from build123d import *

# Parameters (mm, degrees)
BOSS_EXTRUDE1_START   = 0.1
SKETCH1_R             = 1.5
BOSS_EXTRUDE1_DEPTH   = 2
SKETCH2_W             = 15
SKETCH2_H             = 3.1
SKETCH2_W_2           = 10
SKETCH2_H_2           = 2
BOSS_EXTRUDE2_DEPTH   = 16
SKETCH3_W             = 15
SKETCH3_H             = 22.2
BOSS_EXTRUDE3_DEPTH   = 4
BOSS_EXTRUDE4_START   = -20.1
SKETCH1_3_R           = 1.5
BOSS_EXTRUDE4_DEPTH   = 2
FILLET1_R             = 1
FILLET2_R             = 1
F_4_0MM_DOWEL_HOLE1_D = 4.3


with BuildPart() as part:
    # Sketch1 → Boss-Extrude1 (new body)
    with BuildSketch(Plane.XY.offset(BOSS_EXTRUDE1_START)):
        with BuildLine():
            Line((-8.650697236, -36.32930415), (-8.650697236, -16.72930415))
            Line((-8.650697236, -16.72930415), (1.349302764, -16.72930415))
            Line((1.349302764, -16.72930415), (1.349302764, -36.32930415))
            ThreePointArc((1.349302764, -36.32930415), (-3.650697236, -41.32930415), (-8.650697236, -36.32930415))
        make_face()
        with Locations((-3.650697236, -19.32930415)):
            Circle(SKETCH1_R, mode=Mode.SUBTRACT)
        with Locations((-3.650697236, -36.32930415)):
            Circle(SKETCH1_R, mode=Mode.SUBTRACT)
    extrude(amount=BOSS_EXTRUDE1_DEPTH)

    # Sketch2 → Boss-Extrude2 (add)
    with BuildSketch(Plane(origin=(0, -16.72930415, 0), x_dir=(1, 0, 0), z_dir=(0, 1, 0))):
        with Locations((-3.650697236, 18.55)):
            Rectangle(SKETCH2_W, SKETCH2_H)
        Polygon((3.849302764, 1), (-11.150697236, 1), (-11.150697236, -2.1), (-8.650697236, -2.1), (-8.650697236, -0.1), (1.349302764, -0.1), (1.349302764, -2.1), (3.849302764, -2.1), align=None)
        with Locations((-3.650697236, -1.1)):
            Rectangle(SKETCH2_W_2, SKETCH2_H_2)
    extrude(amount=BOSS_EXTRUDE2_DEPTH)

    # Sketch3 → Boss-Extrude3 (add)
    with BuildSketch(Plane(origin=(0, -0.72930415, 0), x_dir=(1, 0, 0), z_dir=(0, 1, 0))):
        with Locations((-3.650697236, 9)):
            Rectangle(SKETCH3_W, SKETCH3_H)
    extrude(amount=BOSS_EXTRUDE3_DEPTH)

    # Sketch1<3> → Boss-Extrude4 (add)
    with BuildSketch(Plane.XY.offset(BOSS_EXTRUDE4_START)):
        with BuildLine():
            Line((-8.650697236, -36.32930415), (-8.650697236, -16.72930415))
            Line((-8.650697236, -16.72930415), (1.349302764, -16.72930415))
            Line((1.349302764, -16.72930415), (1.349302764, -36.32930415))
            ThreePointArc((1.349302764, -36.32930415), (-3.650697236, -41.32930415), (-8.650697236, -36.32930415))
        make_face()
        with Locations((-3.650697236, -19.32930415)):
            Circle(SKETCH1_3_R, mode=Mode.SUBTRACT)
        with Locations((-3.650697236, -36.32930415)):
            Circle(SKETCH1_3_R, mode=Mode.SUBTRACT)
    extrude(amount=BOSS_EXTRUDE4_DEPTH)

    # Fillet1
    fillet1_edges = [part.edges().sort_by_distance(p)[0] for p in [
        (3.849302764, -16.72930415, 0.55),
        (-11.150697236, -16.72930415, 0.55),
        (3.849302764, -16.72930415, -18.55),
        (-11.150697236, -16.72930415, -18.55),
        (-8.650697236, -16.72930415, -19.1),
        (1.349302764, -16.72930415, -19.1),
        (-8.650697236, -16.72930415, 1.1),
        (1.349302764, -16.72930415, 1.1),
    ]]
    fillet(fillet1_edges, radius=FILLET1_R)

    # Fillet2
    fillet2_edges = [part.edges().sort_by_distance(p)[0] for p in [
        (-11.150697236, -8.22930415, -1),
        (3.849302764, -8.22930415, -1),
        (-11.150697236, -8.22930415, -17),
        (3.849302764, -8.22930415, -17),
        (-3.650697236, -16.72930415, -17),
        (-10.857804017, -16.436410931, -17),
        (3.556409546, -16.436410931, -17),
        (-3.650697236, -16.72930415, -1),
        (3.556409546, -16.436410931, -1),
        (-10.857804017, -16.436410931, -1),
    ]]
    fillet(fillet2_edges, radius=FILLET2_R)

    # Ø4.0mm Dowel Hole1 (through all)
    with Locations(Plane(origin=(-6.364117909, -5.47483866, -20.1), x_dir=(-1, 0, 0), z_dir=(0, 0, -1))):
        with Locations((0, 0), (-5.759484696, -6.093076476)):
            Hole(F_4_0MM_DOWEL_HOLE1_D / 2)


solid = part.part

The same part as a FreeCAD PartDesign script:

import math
import FreeCAD as App
import Part
import Sketcher
from FreeCAD import Vector


def edges_at(feature, points):
    """Names of the edges that pass closest to the given points."""
    edges = feature.Shape.Edges
    near = lambda p: min(range(len(edges)), key=lambda i: edges[i].distToShape(Part.Vertex(*p))[0])
    return sorted({f"Edge{near(p) + 1}" for p in points})


def add_polygon(sketch, points):
    """Adds a closed chain of lines whose ends are joined by coincident constraints."""
    first, n = sketch.GeometryCount, len(points)
    for a, b in zip(points, points[1:] + points[:1]):
        sketch.addGeometry(Part.LineSegment(App.Vector(*a, 0), App.Vector(*b, 0)), False)
    for i in range(n):
        sketch.addConstraint(Sketcher.Constraint("Coincident", first + i, 2, first + (i + 1) % n, 1))

doc = App.newDocument("Part")
params = doc.addObject("Spreadsheet::Sheet", "Params")
for row, (alias, value) in enumerate([
    ("sketch1_diameter", "3 mm"),
    ("sketch1_radius", "5 mm"),
    ("sketch1_height", "19.6 mm"),
    ("pad1_length", "2 mm"),
    ("sketch2_width", "15 mm"),
    ("sketch2_height", "3.1 mm"),
    ("pad2_length", "16 mm"),
    ("sketch3_width", "15 mm"),
    ("sketch3_height", "22.2 mm"),
    ("pad3_length", "4 mm"),
    ("sketch4_diameter", "3 mm"),
    ("sketch4_radius", "5 mm"),
    ("sketch4_height", "19.6 mm"),
    ("pad4_length", "2 mm"),
    ("fillet_radius", "1 mm"),
    ("fillet2_radius", "1 mm"),
    ("sketch5_diameter", "4.3 mm"),
    ("hole_diameter", "4.3 mm"),
], start=1):
    params.set(f"A{row}", alias)
    params.set(f"B{row}", "=" + value)
    params.setAlias(f"B{row}", alias)

body = doc.addObject("PartDesign::Body", "Body")
body.AllowCompound = True

# Sketch on XY plane
sketch1 = body.newObject("Sketcher::SketchObject", "Sketch")
sketch1.AttachmentSupport = (doc.getObject("XY_Plane"), [""])
sketch1.MapMode = "FlatFace"
sketch1.AttachmentOffset = App.Placement(Vector(0, 0, 0.1), App.Rotation())
sketch1.addGeometry([
    Part.LineSegment(Vector(-8.7, -16.7, 0), Vector(-8.7, -36.3, 0)),  # 0
    Part.ArcOfCircle(Part.Circle(Vector(-3.7, -36.3, 0), Vector(0, 0, 1), 5), math.radians(180), math.radians(360)),  # 1
    Part.LineSegment(Vector(1.3, -36.3, 0), Vector(1.3, -16.7, 0)),  # 2
    Part.LineSegment(Vector(1.3, -16.7, 0), Vector(-8.7, -16.7, 0)),  # 3
    Part.Circle(Vector(-3.7, -36.3, 0), Vector(0, 0, 1), 1.5),  # 4
    Part.Circle(Vector(-3.7, -19.3, 0), Vector(0, 0, 1), 1.5),  # 5
], False)
sketch1.addConstraint([
    Sketcher.Constraint("Tangent", 0, 2, 1, 1),
    Sketcher.Constraint("Tangent", 1, 2, 2, 1),
    Sketcher.Constraint("Coincident", 2, 2, 3, 1),
    Sketcher.Constraint("Coincident", 3, 2, 0, 1),
    Sketcher.Constraint("Vertical", 0),
    Sketcher.Constraint("Vertical", 2),
    Sketcher.Constraint("Horizontal", 3),
    Sketcher.Constraint("Coincident", 4, 3, 1, 3),
    Sketcher.Constraint("Equal", 4, 5),
    Sketcher.Constraint("Vertical", 4, 3, 5, 3),
    Sketcher.Constraint("Diameter", 4, 3.0),
    Sketcher.Constraint("Radius", 1, 5.0),
    Sketcher.Constraint("DistanceY", 0, 2, 0, 1, 19.6),
    Sketcher.Constraint("DistanceY", 1, 3, 5, 3, 17.0),
    Sketcher.Constraint("DistanceX", 1, 3, -1, 1, 3.650697),
    Sketcher.Constraint("DistanceY", 1, 3, -1, 1, 36.329304),
])
sketch1.setExpression("Constraints[10]", "Params.sketch1_diameter")
sketch1.setExpression("Constraints[11]", "Params.sketch1_radius")
sketch1.setExpression("Constraints[12]", "Params.sketch1_height")
pad1 = body.newObject("PartDesign::Pad", "Pad")
pad1.Profile = sketch1
pad1.setExpression("Length", "Params.pad1_length")

# Sketch on XZ plane
sketch2 = body.newObject("Sketcher::SketchObject", "Sketch001")
sketch2.AttachmentSupport = (doc.getObject("XZ_Plane"), [""])
sketch2.MapMode = "FlatFace"
sketch2.AttachmentOffset = App.Placement(Vector(0, 0, 16.729304), App.Rotation())
add_polygon(sketch2, [(-11.2, -20.1), (-11.2, -17), (3.8, -17), (3.8, -20.1)])  # lines 0-3
add_polygon(sketch2, [(3.8, -1), (-11.2, -1), (-11.2, 2.1), (3.8, 2.1)])  # lines 4-7
sketch2.addConstraint([
    Sketcher.Constraint("Vertical", 0),
    Sketcher.Constraint("Horizontal", 1),
    Sketcher.Constraint("Vertical", 2),
    Sketcher.Constraint("Horizontal", 3),
    Sketcher.Constraint("Horizontal", 4),
    Sketcher.Constraint("Vertical", 5),
    Sketcher.Constraint("Horizontal", 6),
    Sketcher.Constraint("Vertical", 7),
    Sketcher.Constraint("Vertical", 3, 2, 4, 2),
    Sketcher.Constraint("Vertical", 2, 2, 6, 2),
    Sketcher.Constraint("Equal", 2, 5),
    Sketcher.Constraint("DistanceX", 1, 1, 1, 2, 15.0),
    Sketcher.Constraint("DistanceY", 0, 1, 0, 2, 3.1),
    Sketcher.Constraint("DistanceY", 0, 2, -1, 1, 17.0),
    Sketcher.Constraint("DistanceY", 4, 2, -1, 1, 1.0),
    Sketcher.Constraint("DistanceX", 0, 2, -1, 1, 11.150697),
])
sketch2.setExpression("Constraints[19]", "Params.sketch2_width")
sketch2.setExpression("Constraints[20]", "Params.sketch2_height")
pad2 = body.newObject("PartDesign::Pad", "Pad001")
pad2.Profile = sketch2
pad2.setExpression("Length", "Params.pad2_length")
pad2.Reversed = True

# Sketch on XZ plane
sketch3 = body.newObject("Sketcher::SketchObject", "Sketch002")
sketch3.AttachmentSupport = (doc.getObject("XZ_Plane"), [""])
sketch3.MapMode = "FlatFace"
sketch3.AttachmentOffset = App.Placement(Vector(0, 0, 0.729304), App.Rotation())
add_polygon(sketch3, [(-11, -20), (-11, 2), (4, 2), (4, -20)])  # lines 0-3
sketch3.addConstraint([
    Sketcher.Constraint("Vertical", 0),
    Sketcher.Constraint("Horizontal", 1),
    Sketcher.Constraint("Vertical", 2),
    Sketcher.Constraint("Horizontal", 3),
    Sketcher.Constraint("DistanceX", 1, 1, 1, 2, 15.0),
    Sketcher.Constraint("DistanceY", 0, 1, 0, 2, 22.2),
    Sketcher.Constraint("DistanceY", -1, 1, 0, 2, 2.1),
    Sketcher.Constraint("DistanceX", 0, 2, -1, 1, 11.150697),
])
sketch3.setExpression("Constraints[8]", "Params.sketch3_width")
sketch3.setExpression("Constraints[9]", "Params.sketch3_height")
pad3 = body.newObject("PartDesign::Pad", "Pad002")
pad3.Profile = sketch3
pad3.setExpression("Length", "Params.pad3_length")
pad3.Reversed = True

# Sketch on XY plane
sketch4 = body.newObject("Sketcher::SketchObject", "Sketch003")
sketch4.AttachmentSupport = (doc.getObject("XY_Plane"), [""])
sketch4.MapMode = "FlatFace"
sketch4.AttachmentOffset = App.Placement(Vector(0, 0, -20.1), App.Rotation())
sketch4.addGeometry([
    Part.LineSegment(Vector(-8.7, -16.7, 0), Vector(-8.7, -36.3, 0)),  # 0
    Part.ArcOfCircle(Part.Circle(Vector(-3.7, -36.3, 0), Vector(0, 0, 1), 5), math.radians(180), math.radians(360)),  # 1
    Part.LineSegment(Vector(1.3, -36.3, 0), Vector(1.3, -16.7, 0)),  # 2
    Part.LineSegment(Vector(1.3, -16.7, 0), Vector(-8.7, -16.7, 0)),  # 3
    Part.Circle(Vector(-3.7, -36.3, 0), Vector(0, 0, 1), 1.5),  # 4
    Part.Circle(Vector(-3.7, -19.3, 0), Vector(0, 0, 1), 1.5),  # 5
], False)
sketch4.addConstraint([
    Sketcher.Constraint("Tangent", 0, 2, 1, 1),
    Sketcher.Constraint("Tangent", 1, 2, 2, 1),
    Sketcher.Constraint("Coincident", 2, 2, 3, 1),
    Sketcher.Constraint("Coincident", 3, 2, 0, 1),
    Sketcher.Constraint("Vertical", 0),
    Sketcher.Constraint("Vertical", 2),
    Sketcher.Constraint("Horizontal", 3),
    Sketcher.Constraint("Coincident", 4, 3, 1, 3),
    Sketcher.Constraint("Equal", 4, 5),
    Sketcher.Constraint("Vertical", 4, 3, 5, 3),
    Sketcher.Constraint("Diameter", 4, 3.0),
    Sketcher.Constraint("Radius", 1, 5.0),
    Sketcher.Constraint("DistanceY", 0, 2, 0, 1, 19.6),
    Sketcher.Constraint("DistanceY", 1, 3, 5, 3, 17.0),
    Sketcher.Constraint("DistanceX", 1, 3, -1, 1, 3.650697),
    Sketcher.Constraint("DistanceY", 1, 3, -1, 1, 36.329304),
])
sketch4.setExpression("Constraints[10]", "Params.sketch4_diameter")
sketch4.setExpression("Constraints[11]", "Params.sketch4_radius")
sketch4.setExpression("Constraints[12]", "Params.sketch4_height")
pad4 = body.newObject("PartDesign::Pad", "Pad003")
pad4.Profile = sketch4
pad4.setExpression("Length", "Params.pad4_length")
doc.recompute()

fillet = body.newObject("PartDesign::Fillet", "Fillet")
fillet.Base = (pad4, edges_at(pad4, [
    (3.849, -16.729, 0.55),
    (-11.151, -16.729, 0.55),
    (3.849, -16.729, -18.55),
    (-11.151, -16.729, -18.55),
    (-8.651, -16.729, -19.1),
    (1.349, -16.729, -19.1),
    (-8.651, -16.729, 1.1),
    (1.349, -16.729, 1.1),
]))
fillet.setExpression("Radius", "Params.fillet_radius")
doc.recompute()

fillet2 = body.newObject("PartDesign::Fillet", "Fillet001")
fillet2.Base = (fillet, edges_at(fillet, [
    (-11.151, -8.229, -1),
    (3.849, -8.229, -1),
    (-11.151, -8.229, -17),
    (3.849, -8.229, -17),
    (-3.651, -16.729, -17),
    (-10.858, -16.436, -17),
    (3.556, -16.436, -17),
    (-3.651, -16.729, -1),
    (3.556, -16.436, -1),
    (-10.858, -16.436, -1),
]))
fillet2.setExpression("Radius", "Params.fillet2_radius")

# Sketch on XY plane
sketch5 = body.newObject("Sketcher::SketchObject", "Sketch004")
sketch5.AttachmentSupport = (doc.getObject("XY_Plane"), [""])
sketch5.MapMode = "FlatFace"
sketch5.AttachmentOffset = App.Placement(Vector(0, 0, -20.1), App.Rotation())
sketch5.addGeometry([
    Part.Circle(Vector(-6.4, -5.5, 0), Vector(0, 0, 1), 2.1),
    Part.Circle(Vector(-0.6, -11.6, 0), Vector(0, 0, 1), 2.1),
], False)
sketch5.addConstraint([
    Sketcher.Constraint("Equal", 0, 1),
    Sketcher.Constraint("Diameter", 0, 4.3),
    Sketcher.Constraint("DistanceY", 0, 3, -1, 1, 5.474839),
    Sketcher.Constraint("DistanceX", 0, 3, -1, 1, 6.364118),
    Sketcher.Constraint("DistanceX", 1, 3, -1, 1, 0.604633),
    Sketcher.Constraint("DistanceY", 1, 3, -1, 1, 11.567915),
])
sketch5.setExpression("Constraints[1]", "Params.sketch5_diameter")
doc.recompute()
hole = body.newObject("PartDesign::Hole", "Hole")
hole.Profile = sketch5
hole.ThreadType = "None"
hole.setExpression("Diameter", "Params.hole_diameter")
hole.DepthType = "ThroughAll"
hole.Reversed = True

doc.recompute()
